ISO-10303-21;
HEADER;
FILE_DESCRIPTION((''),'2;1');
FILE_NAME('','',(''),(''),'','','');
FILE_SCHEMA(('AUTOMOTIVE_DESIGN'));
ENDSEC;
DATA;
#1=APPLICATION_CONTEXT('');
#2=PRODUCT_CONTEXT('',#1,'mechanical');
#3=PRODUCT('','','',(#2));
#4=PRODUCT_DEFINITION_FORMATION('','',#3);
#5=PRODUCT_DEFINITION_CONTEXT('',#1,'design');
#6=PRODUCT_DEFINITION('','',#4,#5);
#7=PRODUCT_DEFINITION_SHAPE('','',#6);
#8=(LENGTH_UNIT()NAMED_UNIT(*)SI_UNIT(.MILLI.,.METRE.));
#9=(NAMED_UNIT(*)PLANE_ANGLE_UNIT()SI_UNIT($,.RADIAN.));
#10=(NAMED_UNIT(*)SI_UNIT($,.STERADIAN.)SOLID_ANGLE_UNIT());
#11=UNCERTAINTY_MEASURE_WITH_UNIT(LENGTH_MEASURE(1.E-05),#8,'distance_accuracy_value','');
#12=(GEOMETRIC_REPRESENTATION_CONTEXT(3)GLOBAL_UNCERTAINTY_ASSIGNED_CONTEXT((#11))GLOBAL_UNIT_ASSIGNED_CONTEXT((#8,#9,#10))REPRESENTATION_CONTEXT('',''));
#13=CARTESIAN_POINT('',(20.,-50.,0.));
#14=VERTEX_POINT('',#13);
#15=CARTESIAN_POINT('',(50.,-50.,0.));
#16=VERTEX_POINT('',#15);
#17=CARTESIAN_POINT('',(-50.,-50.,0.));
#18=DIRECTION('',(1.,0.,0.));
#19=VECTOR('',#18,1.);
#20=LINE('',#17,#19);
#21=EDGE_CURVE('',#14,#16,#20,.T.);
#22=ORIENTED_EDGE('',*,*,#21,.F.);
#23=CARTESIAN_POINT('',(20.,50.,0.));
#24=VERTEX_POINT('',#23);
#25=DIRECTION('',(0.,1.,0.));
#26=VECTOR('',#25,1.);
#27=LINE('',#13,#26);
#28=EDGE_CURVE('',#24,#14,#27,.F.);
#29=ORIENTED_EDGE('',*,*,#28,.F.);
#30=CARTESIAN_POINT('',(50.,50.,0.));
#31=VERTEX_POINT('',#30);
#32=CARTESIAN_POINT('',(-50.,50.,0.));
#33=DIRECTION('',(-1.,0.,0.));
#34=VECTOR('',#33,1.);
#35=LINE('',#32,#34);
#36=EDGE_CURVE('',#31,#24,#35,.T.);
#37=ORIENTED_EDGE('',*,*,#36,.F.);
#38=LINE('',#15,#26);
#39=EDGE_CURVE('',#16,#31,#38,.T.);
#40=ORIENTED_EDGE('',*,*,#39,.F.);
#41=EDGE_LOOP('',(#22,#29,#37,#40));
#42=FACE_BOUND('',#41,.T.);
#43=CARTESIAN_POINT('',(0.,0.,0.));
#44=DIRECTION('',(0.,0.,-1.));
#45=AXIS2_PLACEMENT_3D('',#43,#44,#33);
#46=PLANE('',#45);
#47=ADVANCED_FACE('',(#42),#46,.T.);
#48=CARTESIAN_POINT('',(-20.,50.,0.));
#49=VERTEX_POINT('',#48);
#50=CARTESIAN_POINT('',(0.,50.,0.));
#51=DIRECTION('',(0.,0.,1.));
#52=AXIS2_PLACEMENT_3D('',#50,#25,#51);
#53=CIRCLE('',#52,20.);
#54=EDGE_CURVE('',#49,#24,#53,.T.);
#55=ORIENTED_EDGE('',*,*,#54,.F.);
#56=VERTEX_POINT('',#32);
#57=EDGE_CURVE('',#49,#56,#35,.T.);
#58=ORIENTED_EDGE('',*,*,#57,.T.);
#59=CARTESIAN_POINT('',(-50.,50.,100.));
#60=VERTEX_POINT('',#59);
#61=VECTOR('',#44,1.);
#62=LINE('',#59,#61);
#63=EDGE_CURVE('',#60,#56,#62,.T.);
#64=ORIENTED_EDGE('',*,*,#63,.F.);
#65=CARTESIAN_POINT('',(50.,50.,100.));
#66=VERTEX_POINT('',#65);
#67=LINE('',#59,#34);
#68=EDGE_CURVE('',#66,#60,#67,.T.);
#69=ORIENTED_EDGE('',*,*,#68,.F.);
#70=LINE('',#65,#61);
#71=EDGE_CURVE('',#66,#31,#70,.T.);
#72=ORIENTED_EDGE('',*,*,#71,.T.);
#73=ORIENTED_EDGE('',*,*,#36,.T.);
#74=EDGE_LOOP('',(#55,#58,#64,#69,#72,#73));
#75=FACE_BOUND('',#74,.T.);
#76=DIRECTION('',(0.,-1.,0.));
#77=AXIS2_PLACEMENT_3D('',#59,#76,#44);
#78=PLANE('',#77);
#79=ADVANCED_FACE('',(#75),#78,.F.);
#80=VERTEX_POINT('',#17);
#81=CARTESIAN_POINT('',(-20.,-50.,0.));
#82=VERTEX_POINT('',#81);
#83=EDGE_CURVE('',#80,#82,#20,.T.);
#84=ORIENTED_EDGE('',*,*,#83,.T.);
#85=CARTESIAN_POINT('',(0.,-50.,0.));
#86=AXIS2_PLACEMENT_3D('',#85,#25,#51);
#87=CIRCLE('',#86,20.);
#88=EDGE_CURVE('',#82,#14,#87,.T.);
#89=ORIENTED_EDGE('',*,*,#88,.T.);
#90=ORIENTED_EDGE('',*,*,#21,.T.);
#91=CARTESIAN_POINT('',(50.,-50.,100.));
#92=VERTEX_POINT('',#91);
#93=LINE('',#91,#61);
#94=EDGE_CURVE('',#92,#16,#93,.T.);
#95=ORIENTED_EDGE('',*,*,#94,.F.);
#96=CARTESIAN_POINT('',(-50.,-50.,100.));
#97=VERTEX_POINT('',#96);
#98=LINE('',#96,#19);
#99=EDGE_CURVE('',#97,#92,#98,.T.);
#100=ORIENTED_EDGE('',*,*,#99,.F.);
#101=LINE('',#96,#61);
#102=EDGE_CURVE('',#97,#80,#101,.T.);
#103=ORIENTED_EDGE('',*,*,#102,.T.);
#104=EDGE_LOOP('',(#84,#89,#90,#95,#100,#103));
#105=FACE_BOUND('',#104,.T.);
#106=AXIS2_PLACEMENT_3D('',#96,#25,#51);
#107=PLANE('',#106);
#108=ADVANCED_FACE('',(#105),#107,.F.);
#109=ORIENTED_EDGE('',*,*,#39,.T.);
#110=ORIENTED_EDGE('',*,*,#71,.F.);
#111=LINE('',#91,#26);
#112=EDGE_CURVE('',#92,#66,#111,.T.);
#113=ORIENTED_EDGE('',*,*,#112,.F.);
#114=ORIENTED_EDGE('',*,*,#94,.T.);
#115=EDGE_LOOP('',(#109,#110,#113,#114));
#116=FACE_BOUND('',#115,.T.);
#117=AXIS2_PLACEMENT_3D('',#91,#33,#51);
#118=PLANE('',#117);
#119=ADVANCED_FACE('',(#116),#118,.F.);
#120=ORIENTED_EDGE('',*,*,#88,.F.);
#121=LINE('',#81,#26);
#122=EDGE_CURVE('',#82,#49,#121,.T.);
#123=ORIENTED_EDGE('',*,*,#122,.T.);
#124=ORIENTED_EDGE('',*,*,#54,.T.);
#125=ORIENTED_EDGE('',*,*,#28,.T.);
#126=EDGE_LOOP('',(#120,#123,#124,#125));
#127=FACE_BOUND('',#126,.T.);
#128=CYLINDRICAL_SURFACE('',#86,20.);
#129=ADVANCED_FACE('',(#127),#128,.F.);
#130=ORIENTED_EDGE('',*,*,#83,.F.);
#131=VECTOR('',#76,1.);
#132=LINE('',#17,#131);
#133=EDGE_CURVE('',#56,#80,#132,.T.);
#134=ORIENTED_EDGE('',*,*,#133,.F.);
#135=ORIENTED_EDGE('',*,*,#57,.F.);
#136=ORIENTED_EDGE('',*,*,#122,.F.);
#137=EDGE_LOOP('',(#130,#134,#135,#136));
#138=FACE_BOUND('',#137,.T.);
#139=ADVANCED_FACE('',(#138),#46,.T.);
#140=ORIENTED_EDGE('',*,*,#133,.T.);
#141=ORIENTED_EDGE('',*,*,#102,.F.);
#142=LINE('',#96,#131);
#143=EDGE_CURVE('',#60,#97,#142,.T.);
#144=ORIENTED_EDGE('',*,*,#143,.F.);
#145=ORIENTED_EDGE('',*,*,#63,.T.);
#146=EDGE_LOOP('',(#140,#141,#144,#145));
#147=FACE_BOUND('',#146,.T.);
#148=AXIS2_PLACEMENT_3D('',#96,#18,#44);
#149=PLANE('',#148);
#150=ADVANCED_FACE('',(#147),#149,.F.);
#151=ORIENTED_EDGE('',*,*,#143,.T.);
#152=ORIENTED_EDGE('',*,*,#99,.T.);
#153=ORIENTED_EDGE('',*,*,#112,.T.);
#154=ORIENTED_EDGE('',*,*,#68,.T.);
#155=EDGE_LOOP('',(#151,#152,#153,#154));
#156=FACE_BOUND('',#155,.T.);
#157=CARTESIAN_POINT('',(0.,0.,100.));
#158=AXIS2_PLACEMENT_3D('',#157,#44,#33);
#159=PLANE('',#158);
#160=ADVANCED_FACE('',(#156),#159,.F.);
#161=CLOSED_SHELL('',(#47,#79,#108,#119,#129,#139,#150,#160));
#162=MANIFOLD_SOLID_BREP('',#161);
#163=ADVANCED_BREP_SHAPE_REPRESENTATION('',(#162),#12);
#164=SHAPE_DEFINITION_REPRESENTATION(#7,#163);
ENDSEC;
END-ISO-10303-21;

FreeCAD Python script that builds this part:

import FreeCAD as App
import Part
import Sketcher

V = App.Vector
Q = App.Units.Quantity


def add_polygon(sketch, points):
    """Adds a closed chain of lines whose ends are joined by coincident constraints."""
    first, n = sketch.GeometryCount, len(points)
    for a, b in zip(points, points[1:] + points[:1]):
        sketch.addGeometry(Part.LineSegment(App.Vector(*a, 0), App.Vector(*b, 0)), False)
    for i in range(n):
        sketch.addConstraint(Sketcher.Constraint("Coincident", first + i, 2, first + (i + 1) % n, 1))

doc = App.newDocument("Part")
body = doc.addObject("PartDesign::Body", "Body")

# Sketch on XY plane
sketch1 = doc.addObject("Sketcher::SketchObject", "Sketch")
body.addObject(sketch1)
sketch1.AttachmentSupport = (doc.XY_Plane, [""])
sketch1.MapMode = "FlatFace"
add_polygon(sketch1, [(-50, 50), (-50, -50), (50, -50), (50, 50)])  # lines 0-3
sketch1.addConstraint([
    Sketcher.Constraint("Vertical", 0),
    Sketcher.Constraint("Horizontal", 1),
    Sketcher.Constraint("Vertical", 2),
    Sketcher.Constraint("Horizontal", 3),
    Sketcher.Constraint("Symmetric", 0, 2, 2, 2, -1, 1),
    Sketcher.Constraint("Equal", 3, 0),
    Sketcher.Constraint("DistanceX", 1, 1, 1, 2, Q("100 mm")),
])
pad1 = doc.addObject("PartDesign::Pad", "Pad")
body.addObject(pad1)
pad1.Profile = sketch1
pad1.Length = 100

# Sketch on XZ plane
sketch2 = doc.addObject("Sketcher::SketchObject", "Sketch001")
body.addObject(sketch2)
sketch2.AttachmentSupport = (doc.XZ_Plane, [""])
sketch2.MapMode = "FlatFace"
sketch2.AttachmentOffset = App.Placement(V(0, 0, -50), App.Rotation())
sketch2.addGeometry(Part.Circle(V(0, 0, 0), V(0, 0, 1), 20), False)
sketch2.addConstraint([
    Sketcher.Constraint("Coincident", 0, 3, -1, 1),
    Sketcher.Constraint("Diameter", 0, Q("40 mm")),
])
pocket1 = doc.addObject("PartDesign::Pocket", "Pocket")
body.addObject(pocket1)
pocket1.Profile = sketch2
pocket1.Type = "ThroughAll"
pocket1.Reversed = True

doc.recompute()
